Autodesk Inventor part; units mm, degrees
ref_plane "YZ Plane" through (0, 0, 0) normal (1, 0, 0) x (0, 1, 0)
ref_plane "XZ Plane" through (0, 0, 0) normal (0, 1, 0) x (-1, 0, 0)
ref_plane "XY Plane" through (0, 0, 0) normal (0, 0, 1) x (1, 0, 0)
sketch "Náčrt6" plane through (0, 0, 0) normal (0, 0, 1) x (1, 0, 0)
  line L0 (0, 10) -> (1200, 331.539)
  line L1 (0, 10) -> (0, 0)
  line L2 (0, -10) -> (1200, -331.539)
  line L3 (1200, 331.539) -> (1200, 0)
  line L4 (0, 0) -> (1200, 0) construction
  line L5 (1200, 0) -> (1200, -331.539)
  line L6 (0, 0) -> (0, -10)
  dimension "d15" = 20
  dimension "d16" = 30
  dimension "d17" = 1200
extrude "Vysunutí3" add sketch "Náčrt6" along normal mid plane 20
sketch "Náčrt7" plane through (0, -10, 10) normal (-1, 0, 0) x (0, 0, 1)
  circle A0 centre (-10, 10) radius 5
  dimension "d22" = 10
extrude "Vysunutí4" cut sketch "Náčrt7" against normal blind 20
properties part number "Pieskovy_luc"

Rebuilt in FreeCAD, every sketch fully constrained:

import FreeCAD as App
import Part
import Sketcher
from FreeCAD import Vector
Q = App.Units.Quantity


def add_polygon(sketch, points):
    """Adds a closed chain of lines whose ends are joined by coincident constraints."""
    first, n = sketch.GeometryCount, len(points)
    for a, b in zip(points, points[1:] + points[:1]):
        sketch.addGeometry(Part.LineSegment(App.Vector(*a, 0), App.Vector(*b, 0)), False)
    for i in range(n):
        sketch.addConstraint(Sketcher.Constraint("Coincident", first + i, 2, first + (i + 1) % n, 1))

doc = App.newDocument("Part")
body = doc.addObject("PartDesign::Body", "Body")

# Sketch on XY plane
sketch1 = body.newObject("Sketcher::SketchObject", "Sketch")
sketch1.AttachmentSupport = (doc.getObject("XY_Plane"), [""])
sketch1.MapMode = "FlatFace"
add_polygon(sketch1, [(1200, 332), (0, 10), (0, -10), (1200, -332)])  # lines 0-3
sketch1.addConstraint(Sketcher.Constraint("Vertical", 1))
sketch1.addConstraint(Sketcher.Constraint("Vertical", 3))
sketch1.addConstraint(Sketcher.Constraint("Symmetric", 0, 2, 1, 2, -1, 1))
sketch1.addConstraint(Sketcher.Constraint("Equal", 0, 2))
sketch1.addConstraint(Sketcher.Constraint("DistanceY", 1, 2, 1, 1, Q("20 mm")))
sketch1.addConstraint(Sketcher.Constraint("DistanceX", -1, 1, 2, 2, Q("1200 mm")))
sketch1.addConstraint(Sketcher.Constraint("Angle", 0, Q("-165 deg")))
pad1 = body.newObject("PartDesign::Pad", "Pad")
pad1.Profile = sketch1
pad1.Length = 20
pad1.Midplane = True

# Sketch on YZ plane
sketch2 = body.newObject("Sketcher::SketchObject", "Sketch001")
sketch2.AttachmentSupport = (doc.getObject("YZ_Plane"), [""])
sketch2.MapMode = "FlatFace"
sketch2.addGeometry(Part.Circle(Vector(0, 0, 0), Vector(0, 0, 1), 5), False)
sketch2.addConstraint(Sketcher.Constraint("Coincident", 0, 3, -1, 1))
sketch2.addConstraint(Sketcher.Constraint("Diameter", 0, Q("10 mm")))
pocket1 = body.newObject("PartDesign::Pocket", "Pocket")
pocket1.Profile = sketch2
pocket1.Length = 20
pocket1.Reversed = True

doc.recompute()
